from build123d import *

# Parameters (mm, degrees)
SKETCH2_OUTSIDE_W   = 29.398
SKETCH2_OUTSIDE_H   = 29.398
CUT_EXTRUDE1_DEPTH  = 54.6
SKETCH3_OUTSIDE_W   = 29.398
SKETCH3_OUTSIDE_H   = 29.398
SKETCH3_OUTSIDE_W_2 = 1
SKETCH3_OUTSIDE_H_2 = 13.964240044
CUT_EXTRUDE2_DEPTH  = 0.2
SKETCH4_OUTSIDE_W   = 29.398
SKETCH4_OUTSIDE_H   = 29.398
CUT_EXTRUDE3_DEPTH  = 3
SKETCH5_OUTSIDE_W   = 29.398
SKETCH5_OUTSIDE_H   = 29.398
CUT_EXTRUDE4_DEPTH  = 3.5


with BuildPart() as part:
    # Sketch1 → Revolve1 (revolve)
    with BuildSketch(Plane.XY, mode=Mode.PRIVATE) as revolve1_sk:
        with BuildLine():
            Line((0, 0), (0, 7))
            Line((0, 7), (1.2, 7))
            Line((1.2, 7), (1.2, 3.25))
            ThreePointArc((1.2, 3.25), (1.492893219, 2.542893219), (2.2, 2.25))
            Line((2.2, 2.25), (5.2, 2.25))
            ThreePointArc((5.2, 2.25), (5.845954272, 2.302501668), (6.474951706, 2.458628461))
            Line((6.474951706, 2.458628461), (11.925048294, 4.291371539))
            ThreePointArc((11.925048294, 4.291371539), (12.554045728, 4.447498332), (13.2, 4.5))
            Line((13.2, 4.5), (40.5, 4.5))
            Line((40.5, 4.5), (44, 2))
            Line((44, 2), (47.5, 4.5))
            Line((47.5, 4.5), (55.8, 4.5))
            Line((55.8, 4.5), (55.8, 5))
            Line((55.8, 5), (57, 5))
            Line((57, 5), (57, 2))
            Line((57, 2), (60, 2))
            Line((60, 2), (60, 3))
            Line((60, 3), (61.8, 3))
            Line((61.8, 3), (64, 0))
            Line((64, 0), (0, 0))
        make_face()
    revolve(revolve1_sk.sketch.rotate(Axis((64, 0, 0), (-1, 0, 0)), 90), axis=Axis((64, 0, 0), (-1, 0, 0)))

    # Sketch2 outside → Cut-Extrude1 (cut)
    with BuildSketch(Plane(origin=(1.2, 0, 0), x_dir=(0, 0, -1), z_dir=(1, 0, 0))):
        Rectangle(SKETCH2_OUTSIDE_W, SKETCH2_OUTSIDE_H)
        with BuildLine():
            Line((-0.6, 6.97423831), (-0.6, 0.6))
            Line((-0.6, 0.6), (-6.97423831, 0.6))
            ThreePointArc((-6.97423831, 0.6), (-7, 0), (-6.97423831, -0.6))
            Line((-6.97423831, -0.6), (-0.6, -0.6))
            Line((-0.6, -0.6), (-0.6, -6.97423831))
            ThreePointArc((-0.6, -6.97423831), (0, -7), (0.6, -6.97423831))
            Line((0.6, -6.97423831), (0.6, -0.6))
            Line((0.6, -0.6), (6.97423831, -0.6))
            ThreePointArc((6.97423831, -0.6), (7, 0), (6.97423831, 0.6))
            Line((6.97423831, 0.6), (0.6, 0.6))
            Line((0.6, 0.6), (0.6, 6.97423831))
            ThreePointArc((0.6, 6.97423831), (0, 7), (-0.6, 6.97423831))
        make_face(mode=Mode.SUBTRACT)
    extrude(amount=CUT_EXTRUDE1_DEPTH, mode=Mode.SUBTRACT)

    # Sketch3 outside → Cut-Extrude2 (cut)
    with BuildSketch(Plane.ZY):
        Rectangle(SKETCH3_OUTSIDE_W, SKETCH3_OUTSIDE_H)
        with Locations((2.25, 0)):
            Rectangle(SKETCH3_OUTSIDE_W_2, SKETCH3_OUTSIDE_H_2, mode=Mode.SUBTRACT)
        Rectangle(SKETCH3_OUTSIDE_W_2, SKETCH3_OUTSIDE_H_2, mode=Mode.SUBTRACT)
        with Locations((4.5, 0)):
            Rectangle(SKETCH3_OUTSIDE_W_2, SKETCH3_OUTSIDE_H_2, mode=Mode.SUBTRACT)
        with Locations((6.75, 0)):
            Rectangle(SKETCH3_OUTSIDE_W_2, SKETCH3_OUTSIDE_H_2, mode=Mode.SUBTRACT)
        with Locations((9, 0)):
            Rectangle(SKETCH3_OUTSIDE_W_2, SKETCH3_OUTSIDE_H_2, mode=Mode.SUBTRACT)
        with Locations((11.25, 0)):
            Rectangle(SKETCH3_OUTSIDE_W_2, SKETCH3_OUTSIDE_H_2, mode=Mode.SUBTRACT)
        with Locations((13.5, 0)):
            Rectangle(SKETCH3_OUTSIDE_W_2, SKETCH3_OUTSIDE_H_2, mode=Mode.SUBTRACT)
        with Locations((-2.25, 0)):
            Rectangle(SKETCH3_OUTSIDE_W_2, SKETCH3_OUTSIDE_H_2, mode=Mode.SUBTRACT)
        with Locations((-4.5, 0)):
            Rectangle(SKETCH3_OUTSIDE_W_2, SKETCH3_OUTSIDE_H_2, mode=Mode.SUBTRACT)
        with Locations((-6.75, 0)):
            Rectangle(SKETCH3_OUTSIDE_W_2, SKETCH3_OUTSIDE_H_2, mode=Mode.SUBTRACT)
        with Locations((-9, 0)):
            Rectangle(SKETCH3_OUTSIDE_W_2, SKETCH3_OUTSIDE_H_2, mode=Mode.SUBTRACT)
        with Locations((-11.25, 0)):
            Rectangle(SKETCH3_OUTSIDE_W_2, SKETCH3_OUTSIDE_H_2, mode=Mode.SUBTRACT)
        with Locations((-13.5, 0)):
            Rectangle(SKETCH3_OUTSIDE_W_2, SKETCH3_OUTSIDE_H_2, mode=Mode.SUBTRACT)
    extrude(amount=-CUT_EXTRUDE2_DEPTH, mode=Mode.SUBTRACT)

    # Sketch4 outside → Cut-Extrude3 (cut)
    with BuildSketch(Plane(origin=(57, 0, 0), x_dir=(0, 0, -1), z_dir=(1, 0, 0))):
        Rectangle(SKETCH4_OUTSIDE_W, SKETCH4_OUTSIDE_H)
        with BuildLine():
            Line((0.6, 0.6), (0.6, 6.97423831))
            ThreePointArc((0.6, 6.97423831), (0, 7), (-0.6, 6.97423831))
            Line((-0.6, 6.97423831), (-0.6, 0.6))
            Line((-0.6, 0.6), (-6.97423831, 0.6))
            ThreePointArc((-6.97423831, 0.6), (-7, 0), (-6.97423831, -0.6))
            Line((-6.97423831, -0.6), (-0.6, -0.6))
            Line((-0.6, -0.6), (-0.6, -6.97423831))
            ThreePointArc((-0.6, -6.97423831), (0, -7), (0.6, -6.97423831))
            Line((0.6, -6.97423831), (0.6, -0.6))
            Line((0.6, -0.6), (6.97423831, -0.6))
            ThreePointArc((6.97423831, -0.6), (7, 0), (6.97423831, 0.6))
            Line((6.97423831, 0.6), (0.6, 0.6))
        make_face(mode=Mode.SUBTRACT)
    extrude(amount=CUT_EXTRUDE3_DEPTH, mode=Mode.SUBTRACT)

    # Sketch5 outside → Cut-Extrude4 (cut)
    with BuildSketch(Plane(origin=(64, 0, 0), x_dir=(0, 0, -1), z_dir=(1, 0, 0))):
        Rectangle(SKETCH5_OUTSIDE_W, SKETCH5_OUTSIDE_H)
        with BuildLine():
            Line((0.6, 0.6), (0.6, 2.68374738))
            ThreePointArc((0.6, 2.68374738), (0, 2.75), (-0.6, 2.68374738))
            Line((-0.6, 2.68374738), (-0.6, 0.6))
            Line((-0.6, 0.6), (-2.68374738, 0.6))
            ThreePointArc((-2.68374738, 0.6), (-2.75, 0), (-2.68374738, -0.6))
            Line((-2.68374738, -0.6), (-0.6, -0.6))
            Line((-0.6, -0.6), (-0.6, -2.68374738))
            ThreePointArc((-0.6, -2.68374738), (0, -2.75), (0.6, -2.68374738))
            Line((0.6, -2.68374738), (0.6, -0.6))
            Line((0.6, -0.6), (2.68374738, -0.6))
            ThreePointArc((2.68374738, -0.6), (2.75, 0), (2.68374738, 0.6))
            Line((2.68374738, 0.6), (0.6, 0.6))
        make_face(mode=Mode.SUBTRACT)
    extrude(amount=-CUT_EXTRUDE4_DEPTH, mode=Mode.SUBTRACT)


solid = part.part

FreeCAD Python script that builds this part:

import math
import FreeCAD as App
import Part
import Sketcher
from FreeCAD import Vector
Q = App.Units.Quantity

doc = App.newDocument("Part")
body = doc.addObject("PartDesign::Body", "Body")

sketch1 = body.newObject("Sketcher::SketchObject", "Sketch")
sketch1.AttachmentSupport = (doc.getObject("XY_Plane"), [""])
sketch1.MapMode = "FlatFace"
sketch1.addGeometry([
    Part.LineSegment(Vector(0, 7, 0), Vector(0, 0, 0)),
    Part.LineSegment(Vector(0, 0, 0), Vector(64, 0, 0)),
    Part.LineSegment(Vector(64, 0, 0), Vector(61.8, 3, 0)),
    Part.LineSegment(Vector(61.8, 3, 0), Vector(60, 3, 0)),
    Part.LineSegment(Vector(60, 3, 0), Vector(60, 2, 0)),
    Part.LineSegment(Vector(60, 2, 0), Vector(57, 2, 0)),
    Part.LineSegment(Vector(57, 2, 0), Vector(57, 5, 0)),
    Part.LineSegment(Vector(57, 5, 0), Vector(55.8, 5, 0)),
    Part.LineSegment(Vector(55.8, 5, 0), Vector(55.8, 4.5, 0)),
    Part.LineSegment(Vector(55.8, 4.5, 0), Vector(47.5, 4.5, 0)),
    Part.LineSegment(Vector(47.5, 4.5, 0), Vector(44, 2, 0)),
    Part.LineSegment(Vector(44, 2, 0), Vector(40.5, 4.5, 0)),
    Part.LineSegment(Vector(40.5, 4.5, 0), Vector(13.2, 4.5, 0)),
    Part.ArcOfCircle(Part.Circle(Vector(13.2, 0.5, 0), Vector(0, 0, 1), 4), math.radians(90), math.radians(108.59)),
    Part.LineSegment(Vector(11.9, 4.3, 0), Vector(6.5, 2.5, 0)),
    Part.ArcOfCircle(Part.Circle(Vector(5.2, 6.2, 0), Vector(0, 0, 1), 4), math.radians(-90), math.radians(-71.41)),
    Part.LineSegment(Vector(5.2, 2.2, 0), Vector(2.2, 2.2, 0)),
    Part.ArcOfCircle(Part.Circle(Vector(2.2, 3.3, 0), Vector(0, 0, 1), 1), math.radians(-180), math.radians(-90)),
    Part.LineSegment(Vector(1.2, 3.2, 0), Vector(1.2, 7, 0)),
    Part.LineSegment(Vector(1.2, 7, 0), Vector(0, 7, 0)),
], False)
sketch1.addConstraint([
    Sketcher.Constraint("Coincident", 0, 2, 1, 1),
    Sketcher.Constraint("Coincident", 1, 2, 2, 1),
    Sketcher.Constraint("Coincident", 2, 2, 3, 1),
    Sketcher.Constraint("Coincident", 3, 2, 4, 1),
    Sketcher.Constraint("Coincident", 4, 2, 5, 1),
    Sketcher.Constraint("Coincident", 5, 2, 6, 1),
    Sketcher.Constraint("Coincident", 6, 2, 7, 1),
    Sketcher.Constraint("Coincident", 7, 2, 8, 1),
    Sketcher.Constraint("Coincident", 8, 2, 9, 1),
    Sketcher.Constraint("Coincident", 9, 2, 10, 1),
    Sketcher.Constraint("Coincident", 10, 2, 11, 1),
    Sketcher.Constraint("Coincident", 11, 2, 12, 1),
    Sketcher.Constraint("Tangent", 12, 2, 13, 1),
    Sketcher.Constraint("Tangent", 13, 2, 14, 1),
    Sketcher.Constraint("Tangent", 14, 2, 15, 2),
    Sketcher.Constraint("Tangent", 15, 1, 16, 1),
    Sketcher.Constraint("Tangent", 16, 2, 17, 2),
    Sketcher.Constraint("Tangent", 17, 1, 18, 1),
    Sketcher.Constraint("Coincident", 18, 2, 19, 1),
    Sketcher.Constraint("Coincident", 19, 2, 0, 1),
    Sketcher.Constraint("Vertical", 0),
    Sketcher.Constraint("Horizontal", 1),
    Sketcher.Constraint("Horizontal", 3),
    Sketcher.Constraint("Vertical", 4),
    Sketcher.Constraint("Horizontal", 5),
    Sketcher.Constraint("Vertical", 6),
    Sketcher.Constraint("Horizontal", 7),
    Sketcher.Constraint("Vertical", 8),
    Sketcher.Constraint("Horizontal", 9),
    Sketcher.Constraint("Horizontal", 12),
    Sketcher.Constraint("Horizontal", 16),
    Sketcher.Constraint("Vertical", 18),
    Sketcher.Constraint("Horizontal", 19),
    Sketcher.Constraint("Coincident", 0, 2, -1, 1),
    Sketcher.Constraint("Equal", 13, 15),
    Sketcher.Constraint("Horizontal", 5, 2, 10, 2),
    Sketcher.Constraint("Horizontal", 9, 2, 11, 2),
    Sketcher.Constraint("Equal", 5, 16),
    Sketcher.Constraint("Equal", 7, 19),
    Sketcher.Constraint("Equal", 16, 6),
    Sketcher.Constraint("Equal", 10, 11),
    Sketcher.Constraint("Radius", 13, Q("4 mm")),
    Sketcher.Constraint("Radius", 17, Q("1 mm")),
    Sketcher.Constraint("DistanceX", 1, 1, 1, 2, Q("64 mm")),
    Sketcher.Constraint("DistanceX", 5, 2, 5, 1, Q("3 mm")),
    Sketcher.Constraint("DistanceY", 0, 2, 0, 1, Q("7 mm")),
    Sketcher.Constraint("DistanceY", 4, 2, 4, 1, Q("1 mm")),
    Sketcher.Constraint("DistanceX", 3, 2, 3, 1, Q("1.8 mm")),
    Sketcher.Constraint("DistanceX", 7, 2, 7, 1, Q("1.2 mm")),
    Sketcher.Constraint("DistanceX", 9, 2, 9, 1, Q("8.3 mm")),
    Sketcher.Constraint("DistanceX", 12, 2, 12, 1, Q("27.3 mm")),
    Sketcher.Constraint("DistanceY", 8, 2, 8, 1, Q("0.5 mm")),
    Sketcher.Constraint("DistanceY", -1, 1, 2, 2, Q("3 mm")),
    Sketcher.Constraint("DistanceX", -1, 1, 3, 2, Q("60 mm")),
    Sketcher.Constraint("DistanceX", -1, 1, 10, 2, Q("44 mm")),
    Sketcher.Constraint("DistanceY", 18, 1, 18, 2, Q("3.75 mm")),
])
revolution = body.newObject("PartDesign::Revolution", "Revolution")
revolution.Profile = sketch1
revolution.ReferenceAxis = (sketch1, ["H_Axis"])
revolution.Angle = 360

sketch2 = body.newObject("Sketcher::SketchObject", "Sketch001")
sketch2.AttachmentSupport = (doc.getObject("YZ_Plane"), [""])
sketch2.MapMode = "FlatFace"
sketch2.AttachmentOffset = App.Placement(Vector(0, 0, 1.2), App.Rotation())
sketch2.addGeometry([
    Part.LineSegment(Vector(14.7, 14.7, 0), Vector(-14.7, 14.7, 0)),
    Part.LineSegment(Vector(-14.7, 14.7, 0), Vector(-14.7, -14.7, 0)),
    Part.LineSegment(Vector(-14.7, -14.7, 0), Vector(14.7, -14.7, 0)),
    Part.LineSegment(Vector(14.7, -14.7, 0), Vector(14.7, 14.7, 0)),
    Part.LineSegment(Vector(0.6, 0.6, 0), Vector(7, 0.6, 0)),
    Part.ArcOfCircle(Part.Circle(Vector(0, 0, 0), Vector(0, 0, 1), 7), math.radians(-4.92), math.radians(4.92)),
    Part.LineSegment(Vector(7, -0.6, 0), Vector(0.6, -0.6, 0)),
    Part.LineSegment(Vector(0.6, -0.6, 0), Vector(0.6, -7, 0)),
    Part.ArcOfCircle(Part.Circle(Vector(0, 0, 0), Vector(0, 0, 1), 7), math.radians(-94.92), math.radians(-85.08)),
    Part.LineSegment(Vector(-0.6, -7, 0), Vector(-0.6, -0.6, 0)),
    Part.LineSegment(Vector(-0.6, -0.6, 0), Vector(-7, -0.6, 0)),
    Part.ArcOfCircle(Part.Circle(Vector(0, 0, 0), Vector(0, 0, 1), 7), math.radians(175.08), math.radians(184.92)),
    Part.LineSegment(Vector(-7, 0.6, 0), Vector(-0.6, 0.6, 0)),
    Part.LineSegment(Vector(-0.6, 0.6, 0), Vector(-0.6, 7, 0)),
    Part.ArcOfCircle(Part.Circle(Vector(0, 0, 0), Vector(0, 0, 1), 7), math.radians(85.08), math.radians(94.92)),
    Part.LineSegment(Vector(0.6, 7, 0), Vector(0.6, 0.6, 0)),
], False)
sketch2.addConstraint([
    Sketcher.Constraint("Coincident", 0, 2, 1, 1),
    Sketcher.Constraint("Coincident", 1, 2, 2, 1),
    Sketcher.Constraint("Coincident", 2, 2, 3, 1),
    Sketcher.Constraint("Coincident", 3, 2, 0, 1),
    Sketcher.Constraint("Coincident", 4, 2, 5, 2),
    Sketcher.Constraint("Coincident", 5, 1, 6, 1),
    Sketcher.Constraint("Coincident", 6, 2, 7, 1),
    Sketcher.Constraint("Coincident", 7, 2, 8, 2),
    Sketcher.Constraint("Coincident", 8, 1, 9, 1),
    Sketcher.Constraint("Coincident", 9, 2, 10, 1),
    Sketcher.Constraint("Coincident", 10, 2, 11, 2),
    Sketcher.Constraint("Coincident", 11, 1, 12, 1),
    Sketcher.Constraint("Coincident", 12, 2, 13, 1),
    Sketcher.Constraint("Coincident", 13, 2, 14, 2),
    Sketcher.Constraint("Coincident", 14, 1, 15, 1),
    Sketcher.Constraint("Coincident", 15, 2, 4, 1),
    Sketcher.Constraint("Horizontal", 0),
    Sketcher.Constraint("Vertical", 1),
    Sketcher.Constraint("Horizontal", 2),
    Sketcher.Constraint("Vertical", 3),
    Sketcher.Constraint("Horizontal", 4),
    Sketcher.Constraint("Horizontal", 6),
    Sketcher.Constraint("Vertical", 7),
    Sketcher.Constraint("Vertical", 9),
    Sketcher.Constraint("Horizontal", 10),
    Sketcher.Constraint("Horizontal", 12),
    Sketcher.Constraint("Vertical", 13),
    Sketcher.Constraint("Vertical", 15),
    Sketcher.Constraint("Coincident", 5, 3, -1, 1),
    Sketcher.Constraint("Coincident", 8, 3, -1, 1),
    Sketcher.Constraint("Coincident", 11, 3, -1, 1),
    Sketcher.Constraint("Coincident", 14, 3, -1, 1),
    Sketcher.Constraint("Equal", 5, 8),
    Sketcher.Constraint("Equal", 8, 11),
    Sketcher.Constraint("Equal", 11, 14),
    Sketcher.Constraint("Symmetric", 0, 2, 2, 2, -1, 1),
    Sketcher.Constraint("Symmetric", 6, 2, 12, 2, -1, 1),
    Sketcher.Constraint("Symmetric", 9, 2, 15, 2, -1, 1),
    Sketcher.Constraint("Symmetric", 6, 2, 9, 2, -2),
    Sketcher.Constraint("Equal", 2, 1),
    Sketcher.Constraint("Equal", 12, 7),
    Sketcher.Constraint("Radius", 5, Q("7 mm")),
    Sketcher.Constraint("DistanceY", -1, 1, 4, 2, Q("0.6 mm")),
    Sketcher.Constraint("DistanceX", 0, 2, 0, 1, Q("29.398 mm")),
])
pocket1 = body.newObject("PartDesign::Pocket", "Pocket")
pocket1.Profile = sketch2
pocket1.Length = 54.6
pocket1.Reversed = True

sketch3 = body.newObject("Sketcher::SketchObject", "Sketch002")
sketch3.AttachmentSupport = (doc.getObject("YZ_Plane"), [""])
sketch3.MapMode = "FlatFace"
sketch3.addGeometry([
    Part.LineSegment(Vector(14.7, -14.7, 0), Vector(-14.7, -14.7, 0)),
    Part.LineSegment(Vector(-14.7, -14.7, 0), Vector(-14.7, 14.7, 0)),
    Part.LineSegment(Vector(-14.7, 14.7, 0), Vector(14.7, 14.7, 0)),
    Part.LineSegment(Vector(14.7, 14.7, 0), Vector(14.7, -14.7, 0)),
    Part.LineSegment(Vector(-7, -13, 0), Vector(-7, -14, 0)),
    Part.LineSegment(Vector(-7, -14, 0), Vector(7, -14, 0)),
    Part.LineSegment(Vector(7, -14, 0), Vector(7, -13, 0)),
    Part.LineSegment(Vector(7, -13, 0), Vector(-7, -13, 0)),
    Part.LineSegment(Vector(-7, -10.8, 0), Vector(-7, -11.8, 0)),
    Part.LineSegment(Vector(-7, -11.8, 0), Vector(7, -11.8, 0)),
    Part.LineSegment(Vector(7, -11.8, 0), Vector(7, -10.8, 0)),
    Part.LineSegment(Vector(7, -10.8, 0), Vector(-7, -10.8, 0)),
    Part.LineSegment(Vector(-7, -8.5, 0), Vector(-7, -9.5, 0)),
    Part.LineSegment(Vector(-7, -9.5, 0), Vector(7, -9.5, 0)),
    Part.LineSegment(Vector(7, -9.5, 0), Vector(7, -8.5, 0)),
    Part.LineSegment(Vector(7, -8.5, 0), Vector(-7, -8.5, 0)),
    Part.LineSegment(Vector(-7, -6.2, 0), Vector(-7, -7.2, 0)),
    Part.LineSegment(Vector(-7, -7.2, 0), Vector(7, -7.2, 0)),
    Part.LineSegment(Vector(7, -7.2, 0), Vector(7, -6.2, 0)),
    Part.LineSegment(Vector(7, -6.2, 0), Vector(-7, -6.2, 0)),
    Part.LineSegment(Vector(-7, -4, 0), Vector(-7, -5, 0)),
    Part.LineSegment(Vector(-7, -5, 0), Vector(7, -5, 0)),
    Part.LineSegment(Vector(7, -5, 0), Vector(7, -4, 0)),
    Part.LineSegment(Vector(7, -4, 0), Vector(-7, -4, 0)),
    Part.LineSegment(Vector(-7, -1.8, 0), Vector(-7, -2.8, 0)),
    Part.LineSegment(Vector(-7, -2.8, 0), Vector(7, -2.8, 0)),
    Part.LineSegment(Vector(7, -2.8, 0), Vector(7, -1.8, 0)),
    Part.LineSegment(Vector(7, -1.8, 0), Vector(-7, -1.8, 0)),
    Part.LineSegment(Vector(-7, 0.5, 0), Vector(-7, -0.5, 0)),
    Part.LineSegment(Vector(-7, -0.5, 0), Vector(7, -0.5, 0)),
    Part.LineSegment(Vector(7, -0.5, 0), Vector(7, 0.5, 0)),
    Part.LineSegment(Vector(7, 0.5, 0), Vector(-7, 0.5, 0)),
    Part.LineSegment(Vector(-7, 2.8, 0), Vector(-7, 1.8, 0)),
    Part.LineSegment(Vector(-7, 1.8, 0), Vector(7, 1.8, 0)),
    Part.LineSegment(Vector(7, 1.8, 0), Vector(7, 2.8, 0)),
    Part.LineSegment(Vector(7, 2.8, 0), Vector(-7, 2.8, 0)),
    Part.LineSegment(Vector(-7, 5, 0), Vector(-7, 4, 0)),
    Part.LineSegment(Vector(-7, 4, 0), Vector(7, 4, 0)),
    Part.LineSegment(Vector(7, 4, 0), Vector(7, 5, 0)),
    Part.LineSegment(Vector(7, 5, 0), Vector(-7, 5, 0)),
    Part.LineSegment(Vector(-7, 7.2, 0), Vector(-7, 6.2, 0)),
    Part.LineSegment(Vector(-7, 6.2, 0), Vector(7, 6.2, 0)),
    Part.LineSegment(Vector(7, 6.2, 0), Vector(7, 7.2, 0)),
    Part.LineSegment(Vector(7, 7.2, 0), Vector(-7, 7.2, 0)),
    Part.LineSegment(Vector(-7, 9.5, 0), Vector(-7, 8.5, 0)),
    Part.LineSegment(Vector(-7, 8.5, 0), Vector(7, 8.5, 0)),
    Part.LineSegment(Vector(7, 8.5, 0), Vector(7, 9.5, 0)),
    Part.LineSegment(Vector(7, 9.5, 0), Vector(-7, 9.5, 0)),
    Part.LineSegment(Vector(-7, 11.8, 0), Vector(-7, 10.8, 0)),
    Part.LineSegment(Vector(-7, 10.8, 0), Vector(7, 10.8, 0)),
    Part.LineSegment(Vector(7, 10.8, 0), Vector(7, 11.8, 0)),
    Part.LineSegment(Vector(7, 11.8, 0), Vector(-7, 11.8, 0)),
    Part.LineSegment(Vector(-7, 14, 0), Vector(-7, 13, 0)),
    Part.LineSegment(Vector(-7, 13, 0), Vector(7, 13, 0)),
    Part.LineSegment(Vector(7, 13, 0), Vector(7, 14, 0)),
    Part.LineSegment(Vector(7, 14, 0), Vector(-7, 14, 0)),
], False)
sketch3.addConstraint([
    Sketcher.Constraint("Coincident", 0, 2, 1, 1),
    Sketcher.Constraint("Coincident", 1, 2, 2, 1),
    Sketcher.Constraint("Coincident", 2, 2, 3, 1),
    Sketcher.Constraint("Coincident", 3, 2, 0, 1),
    Sketcher.Constraint("Coincident", 4, 2, 5, 1),
    Sketcher.Constraint("Coincident", 5, 2, 6, 1),
    Sketcher.Constraint("Coincident", 6, 2, 7, 1),
    Sketcher.Constraint("Coincident", 7, 2, 4, 1),
    Sketcher.Constraint("Coincident", 8, 2, 9, 1),
    Sketcher.Constraint("Coincident", 9, 2, 10, 1),
    Sketcher.Constraint("Coincident", 10, 2, 11, 1),
    Sketcher.Constraint("Coincident", 11, 2, 8, 1),
    Sketcher.Constraint("Coincident", 12, 2, 13, 1),
    Sketcher.Constraint("Coincident", 13, 2, 14, 1),
    Sketcher.Constraint("Coincident", 14, 2, 15, 1),
    Sketcher.Constraint("Coincident", 15, 2, 12, 1),
    Sketcher.Constraint("Coincident", 16, 2, 17, 1),
    Sketcher.Constraint("Coincident", 17, 2, 18, 1),
    Sketcher.Constraint("Coincident", 18, 2, 19, 1),
    Sketcher.Constraint("Coincident", 19, 2, 16, 1),
    Sketcher.Constraint("Coincident", 20, 2, 21, 1),
    Sketcher.Constraint("Coincident", 21, 2, 22, 1),
    Sketcher.Constraint("Coincident", 22, 2, 23, 1),
    Sketcher.Constraint("Coincident", 23, 2, 20, 1),
    Sketcher.Constraint("Coincident", 24, 2, 25, 1),
    Sketcher.Constraint("Coincident", 25, 2, 26, 1),
    Sketcher.Constraint("Coincident", 26, 2, 27, 1),
    Sketcher.Constraint("Coincident", 27, 2, 24, 1),
    Sketcher.Constraint("Coincident", 28, 2, 29, 1),
    Sketcher.Constraint("Coincident", 29, 2, 30, 1),
    Sketcher.Constraint("Coincident", 30, 2, 31, 1),
    Sketcher.Constraint("Coincident", 31, 2, 28, 1),
    Sketcher.Constraint("Coincident", 32, 2, 33, 1),
    Sketcher.Constraint("Coincident", 33, 2, 34, 1),
    Sketcher.Constraint("Coincident", 34, 2, 35, 1),
    Sketcher.Constraint("Coincident", 35, 2, 32, 1),
    Sketcher.Constraint("Coincident", 36, 2, 37, 1),
    Sketcher.Constraint("Coincident", 37, 2, 38, 1),
    Sketcher.Constraint("Coincident", 38, 2, 39, 1),
    Sketcher.Constraint("Coincident", 39, 2, 36, 1),
    Sketcher.Constraint("Coincident", 40, 2, 41, 1),
    Sketcher.Constraint("Coincident", 41, 2, 42, 1),
    Sketcher.Constraint("Coincident", 42, 2, 43, 1),
    Sketcher.Constraint("Coincident", 43, 2, 40, 1),
    Sketcher.Constraint("Coincident", 44, 2, 45, 1),
    Sketcher.Constraint("Coincident", 45, 2, 46, 1),
    Sketcher.Constraint("Coincident", 46, 2, 47, 1),
    Sketcher.Constraint("Coincident", 47, 2, 44, 1),
    Sketcher.Constraint("Coincident", 48, 2, 49, 1),
    Sketcher.Constraint("Coincident", 49, 2, 50, 1),
    Sketcher.Constraint("Coincident", 50, 2, 51, 1),
    Sketcher.Constraint("Coincident", 51, 2, 48, 1),
    Sketcher.Constraint("Coincident", 52, 2, 53, 1),
    Sketcher.Constraint("Coincident", 53, 2, 54, 1),
    Sketcher.Constraint("Coincident", 54, 2, 55, 1),
    Sketcher.Constraint("Coincident", 55, 2, 52, 1),
    Sketcher.Constraint("Horizontal", 0),
    Sketcher.Constraint("Vertical", 1),
    Sketcher.Constraint("Horizontal", 2),
    Sketcher.Constraint("Vertical", 3),
    Sketcher.Constraint("Vertical", 4),
    Sketcher.Constraint("Horizontal", 5),
    Sketcher.Constraint("Vertical", 6),
    Sketcher.Constraint("Horizontal", 7),
    Sketcher.Constraint("Vertical", 8),
    Sketcher.Constraint("Horizontal", 9),
    Sketcher.Constraint("Vertical", 10),
    Sketcher.Constraint("Horizontal", 11),
    Sketcher.Constraint("Vertical", 12),
    Sketcher.Constraint("Horizontal", 13),
    Sketcher.Constraint("Vertical", 14),
    Sketcher.Constraint("Horizontal", 15),
    Sketcher.Constraint("Vertical", 16),
    Sketcher.Constraint("Horizontal", 17),
    Sketcher.Constraint("Vertical", 18),
    Sketcher.Constraint("Horizontal", 19),
    Sketcher.Constraint("Vertical", 20),
    Sketcher.Constraint("Horizontal", 21),
    Sketcher.Constraint("Vertical", 22),
    Sketcher.Constraint("Horizontal", 23),
    Sketcher.Constraint("Vertical", 24),
    Sketcher.Constraint("Horizontal", 25),
    Sketcher.Constraint("Vertical", 26),
    Sketcher.Constraint("Horizontal", 27),
    Sketcher.Constraint("Vertical", 28),
    Sketcher.Constraint("Horizontal", 29),
    Sketcher.Constraint("Vertical", 30),
    Sketcher.Constraint("Horizontal", 31),
    Sketcher.Constraint("Vertical", 32),
    Sketcher.Constraint("Horizontal", 33),
    Sketcher.Constraint("Vertical", 34),
    Sketcher.Constraint("Horizontal", 35),
    Sketcher.Constraint("Vertical", 36),
    Sketcher.Constraint("Horizontal", 37),
    Sketcher.Constraint("Vertical", 38),
    Sketcher.Constraint("Horizontal", 39),
    Sketcher.Constraint("Vertical", 40),
    Sketcher.Constraint("Horizontal", 41),
    Sketcher.Constraint("Vertical", 42),
    Sketcher.Constraint("Horizontal", 43),
    Sketcher.Constraint("Vertical", 44),
    Sketcher.Constraint("Horizontal", 45),
    Sketcher.Constraint("Vertical", 46),
    Sketcher.Constraint("Horizontal", 47),
    Sketcher.Constraint("Vertical", 48),
    Sketcher.Constraint("Horizontal", 49),
    Sketcher.Constraint("Vertical", 50),
    Sketcher.Constraint("Horizontal", 51),
    Sketcher.Constraint("Vertical", 52),
    Sketcher.Constraint("Horizontal", 53),
    Sketcher.Constraint("Vertical", 54),
    Sketcher.Constraint("Horizontal", 55),
    Sketcher.Constraint("Symmetric", 0, 2, 2, 2, -1, 1),
    Sketcher.Constraint("Symmetric", 28, 2, 30, 2, -1, 1),
    Sketcher.Constraint("Symmetric", 26, 2, 32, 2, -1, 1),
    Sketcher.Constraint("Symmetric", 24, 2, 34, 2, -1, 1),
    Sketcher.Constraint("Symmetric", 22, 2, 36, 2, -1, 1),
    Sketcher.Constraint("Symmetric", 20, 2, 38, 2, -1, 1),
    Sketcher.Constraint("Symmetric", 18, 2, 40, 2, -1, 1),
    Sketcher.Constraint("Symmetric", 16, 2, 42, 2, -1, 1),
    Sketcher.Constraint("Symmetric", 14, 2, 44, 2, -1, 1),
    Sketcher.Constraint("Symmetric", 12, 2, 46, 2, -1, 1),
    Sketcher.Constraint("Symmetric", 10, 2, 48, 2, -1, 1),
    Sketcher.Constraint("Symmetric", 8, 2, 50, 2, -1, 1),
    Sketcher.Constraint("Symmetric", 6, 2, 52, 2, -1, 1),
    Sketcher.Constraint("Symmetric", 4, 2, 54, 2, -1, 1),
    Sketcher.Constraint("Vertical", 7, 2, 8, 2),
    Sketcher.Constraint("Vertical", 6, 2, 9, 2),
    Sketcher.Constraint("Vertical", 11, 2, 12, 2),
    Sketcher.Constraint("Vertical", 10, 2, 13, 2),
    Sketcher.Constraint("Vertical", 15, 2, 16, 2),
    Sketcher.Constraint("Vertical", 14, 2, 17, 2),
    Sketcher.Constraint("Vertical", 19, 2, 20, 2),
    Sketcher.Constraint("Vertical", 18, 2, 21, 2),
    Sketcher.Constraint("Vertical", 23, 2, 24, 2),
    Sketcher.Constraint("Vertical", 22, 2, 25, 2),
    Sketcher.Constraint("Vertical", 27, 2, 28, 2),
    Sketcher.Constraint("Vertical", 26, 2, 29, 2),
    Sketcher.Constraint("Equal", 2, 1),
    Sketcher.Constraint("Equal", 6, 8),
    Sketcher.Constraint("Equal", 10, 12),
    Sketcher.Constraint("Equal", 14, 16),
    Sketcher.Constraint("Equal", 18, 20),
    Sketcher.Constraint("Equal", 22, 24),
    Sketcher.Constraint("Equal", 26, 28),
    Sketcher.Constraint("DistanceY", 4, 2, 4, 1, Q("1 mm")),
    Sketcher.Constraint("DistanceY", 4, 2, -1, 1, Q("14 mm")),
    Sketcher.Constraint("DistanceY", 20, 2, -1, 1, Q("5 mm")),
    Sketcher.Constraint("DistanceY", 12, 2, -1, 1, Q("9.5 mm")),
    Sketcher.Constraint("DistanceY", 11, 2, 16, 2, Q("3.5 mm")),
    Sketcher.Constraint("DistanceY", 19, 2, 24, 2, Q("3.5 mm")),
    Sketcher.Constraint("DistanceY", 27, 2, 32, 2, Q("3.5 mm")),
    Sketcher.Constraint("DistanceX", 0, 2, 0, 1, Q("29.398 mm")),
    Sketcher.Constraint("DistanceX", 5, 1, 5, 2, Q("13.96424 mm")),
])
pocket2 = body.newObject("PartDesign::Pocket", "Pocket001")
pocket2.Profile = sketch3
pocket2.Length = 0.2
pocket2.Reversed = True

sketch4 = body.newObject("Sketcher::SketchObject", "Sketch003")
sketch4.AttachmentSupport = (doc.getObject("YZ_Plane"), [""])
sketch4.MapMode = "FlatFace"
sketch4.AttachmentOffset = App.Placement(Vector(0, 0, 57), App.Rotation())
sketch4.addGeometry([
    Part.LineSegment(Vector(14.7, 14.7, 0), Vector(-14.7, 14.7, 0)),
    Part.LineSegment(Vector(-14.7, 14.7, 0), Vector(-14.7, -14.7, 0)),
    Part.LineSegment(Vector(-14.7, -14.7, 0), Vector(14.7, -14.7, 0)),
    Part.LineSegment(Vector(14.7, -14.7, 0), Vector(14.7, 14.7, 0)),
    Part.LineSegment(Vector(7, -0.6, 0), Vector(0.6, -0.6, 0)),
    Part.LineSegment(Vector(0.6, -0.6, 0), Vector(0.6, -7, 0)),
    Part.ArcOfCircle(Part.Circle(Vector(0, 0, 0), Vector(0, 0, 1), 7), math.radians(-94.92), math.radians(-85.08)),
    Part.LineSegment(Vector(-0.6, -7, 0), Vector(-0.6, -0.6, 0)),
    Part.LineSegment(Vector(-0.6, -0.6, 0), Vector(-7, -0.6, 0)),
    Part.ArcOfCircle(Part.Circle(Vector(0, 0, 0), Vector(0, 0, 1), 7), math.radians(175.08), math.radians(184.92)),
    Part.LineSegment(Vector(-7, 0.6, 0), Vector(-0.6, 0.6, 0)),
    Part.LineSegment(Vector(-0.6, 0.6, 0), Vector(-0.6, 7, 0)),
    Part.ArcOfCircle(Part.Circle(Vector(0, 0, 0), Vector(0, 0, 1), 7), math.radians(85.08), math.radians(94.92)),
    Part.LineSegment(Vector(0.6, 7, 0), Vector(0.6, 0.6, 0)),
    Part.LineSegment(Vector(0.6, 0.6, 0), Vector(7, 0.6, 0)),
    Part.ArcOfCircle(Part.Circle(Vector(0, 0, 0), Vector(0, 0, 1), 7), math.radians(-4.92), math.radians(4.92)),
], False)
sketch4.addConstraint([
    Sketcher.Constraint("Coincident", 0, 2, 1, 1),
    Sketcher.Constraint("Coincident", 1, 2, 2, 1),
    Sketcher.Constraint("Coincident", 2, 2, 3, 1),
    Sketcher.Constraint("Coincident", 3, 2, 0, 1),
    Sketcher.Constraint("Coincident", 4, 2, 5, 1),
    Sketcher.Constraint("Coincident", 5, 2, 6, 2),
    Sketcher.Constraint("Coincident", 6, 1, 7, 1),
    Sketcher.Constraint("Coincident", 7, 2, 8, 1),
    Sketcher.Constraint("Coincident", 8, 2, 9, 2),
    Sketcher.Constraint("Coincident", 9, 1, 10, 1),
    Sketcher.Constraint("Coincident", 10, 2, 11, 1),
    Sketcher.Constraint("Coincident", 11, 2, 12, 2),
    Sketcher.Constraint("Coincident", 12, 1, 13, 1),
    Sketcher.Constraint("Coincident", 13, 2, 14, 1),
    Sketcher.Constraint("Coincident", 14, 2, 15, 2),
    Sketcher.Constraint("Coincident", 15, 1, 4, 1),
    Sketcher.Constraint("Horizontal", 0),
    Sketcher.Constraint("Vertical", 1),
    Sketcher.Constraint("Horizontal", 2),
    Sketcher.Constraint("Vertical", 3),
    Sketcher.Constraint("Horizontal", 4),
    Sketcher.Constraint("Vertical", 5),
    Sketcher.Constraint("Vertical", 7),
    Sketcher.Constraint("Horizontal", 8),
    Sketcher.Constraint("Horizontal", 10),
    Sketcher.Constraint("Vertical", 11),
    Sketcher.Constraint("Vertical", 13),
    Sketcher.Constraint("Horizontal", 14),
    Sketcher.Constraint("Coincident", 6, 3, -1, 1),
    Sketcher.Constraint("Coincident", 9, 3, -1, 1),
    Sketcher.Constraint("Coincident", 12, 3, -1, 1),
    Sketcher.Constraint("Coincident", 15, 3, -1, 1),
    Sketcher.Constraint("Equal", 6, 9),
    Sketcher.Constraint("Equal", 9, 12),
    Sketcher.Constraint("Equal", 12, 15),
    Sketcher.Constraint("Symmetric", 0, 2, 2, 2, -1, 1),
    Sketcher.Constraint("Symmetric", 4, 2, 10, 2, -1, 1),
    Sketcher.Constraint("Symmetric", 7, 2, 13, 2, -1, 1),
    Sketcher.Constraint("Symmetric", 4, 2, 7, 2, -2),
    Sketcher.Constraint("Equal", 2, 1),
    Sketcher.Constraint("Equal", 14, 5),
    Sketcher.Constraint("Radius", 6, Q("7 mm")),
    Sketcher.Constraint("DistanceX", -1, 1, 4, 2, Q("0.6 mm")),
    Sketcher.Constraint("DistanceX", 0, 2, 0, 1, Q("29.398 mm")),
])
pocket3 = body.newObject("PartDesign::Pocket", "Pocket002")
pocket3.Profile = sketch4
pocket3.Length = 3
pocket3.Reversed = True

sketch5 = body.newObject("Sketcher::SketchObject", "Sketch004")
sketch5.AttachmentSupport = (doc.getObject("YZ_Plane"), [""])
sketch5.MapMode = "FlatFace"
sketch5.AttachmentOffset = App.Placement(Vector(0, 0, 64), App.Rotation())
sketch5.addGeometry([
    Part.LineSegment(Vector(14.7, 14.7, 0), Vector(-14.7, 14.7, 0)),
    Part.LineSegment(Vector(-14.7, 14.7, 0), Vector(-14.7, -14.7, 0)),
    Part.LineSegment(Vector(-14.7, -14.7, 0), Vector(14.7, -14.7, 0)),
    Part.LineSegment(Vector(14.7, -14.7, 0), Vector(14.7, 14.7, 0)),
    Part.LineSegment(Vector(2.7, -0.6, 0), Vector(0.6, -0.6, 0)),
    Part.LineSegment(Vector(0.6, -0.6, 0), Vector(0.6, -2.7, 0)),
    Part.ArcOfCircle(Part.Circle(Vector(0, 0, 0), Vector(0, 0, 1), 2.7), math.radians(-103), math.radians(-77)),
    Part.LineSegment(Vector(-0.6, -2.7, 0), Vector(-0.6, -0.6, 0)),
    Part.LineSegment(Vector(-0.6, -0.6, 0), Vector(-2.7, -0.6, 0)),
    Part.ArcOfCircle(Part.Circle(Vector(0, 0, 0), Vector(0, 0, 1), 2.7), math.radians(167), math.radians(193)),
    Part.LineSegment(Vector(-2.7, 0.6, 0), Vector(-0.6, 0.6, 0)),
    Part.LineSegment(Vector(-0.6, 0.6, 0), Vector(-0.6, 2.7, 0)),
    Part.ArcOfCircle(Part.Circle(Vector(0, 0, 0), Vector(0, 0, 1), 2.7), math.radians(77), math.radians(103)),
    Part.LineSegment(Vector(0.6, 2.7, 0), Vector(0.6, 0.6, 0)),
    Part.LineSegment(Vector(0.6, 0.6, 0), Vector(2.7, 0.6, 0)),
    Part.ArcOfCircle(Part.Circle(Vector(0, 0, 0), Vector(0, 0, 1), 2.7), math.radians(-13), math.radians(13)),
], False)
sketch5.addConstraint([
    Sketcher.Constraint("Coincident", 0, 2, 1, 1),
    Sketcher.Constraint("Coincident", 1, 2, 2, 1),
    Sketcher.Constraint("Coincident", 2, 2, 3, 1),
    Sketcher.Constraint("Coincident", 3, 2, 0, 1),
    Sketcher.Constraint("Coincident", 4, 2, 5, 1),
    Sketcher.Constraint("Coincident", 5, 2, 6, 2),
    Sketcher.Constraint("Coincident", 6, 1, 7, 1),
    Sketcher.Constraint("Coincident", 7, 2, 8, 1),
    Sketcher.Constraint("Coincident", 8, 2, 9, 2),
    Sketcher.Constraint("Coincident", 9, 1, 10, 1),
    Sketcher.Constraint("Coincident", 10, 2, 11, 1),
    Sketcher.Constraint("Coincident", 11, 2, 12, 2),
    Sketcher.Constraint("Coincident", 12, 1, 13, 1),
    Sketcher.Constraint("Coincident", 13, 2, 14, 1),
    Sketcher.Constraint("Coincident", 14, 2, 15, 2),
    Sketcher.Constraint("Coincident", 15, 1, 4, 1),
    Sketcher.Constraint("Horizontal", 0),
    Sketcher.Constraint("Vertical", 1),
    Sketcher.Constraint("Horizontal", 2),
    Sketcher.Constraint("Vertical", 3),
    Sketcher.Constraint("Horizontal", 4),
    Sketcher.Constraint("Vertical", 5),
    Sketcher.Constraint("Vertical", 7),
    Sketcher.Constraint("Horizontal", 8),
    Sketcher.Constraint("Horizontal", 10),
    Sketcher.Constraint("Vertical", 11),
    Sketcher.Constraint("Vertical", 13),
    Sketcher.Constraint("Horizontal", 14),
    Sketcher.Constraint("Coincident", 6, 3, -1, 1),
    Sketcher.Constraint("Coincident", 9, 3, -1, 1),
    Sketcher.Constraint("Coincident", 12, 3, -1, 1),
    Sketcher.Constraint("Coincident", 15, 3, -1, 1),
    Sketcher.Constraint("Equal", 6, 9),
    Sketcher.Constraint("Equal", 9, 12),
    Sketcher.Constraint("Equal", 12, 15),
    Sketcher.Constraint("Symmetric", 0, 2, 2, 2, -1, 1),
    Sketcher.Constraint("Symmetric", 4, 2, 10, 2, -1, 1),
    Sketcher.Constraint("Symmetric", 7, 2, 13, 2, -1, 1),
    Sketcher.Constraint("Symmetric", 4, 2, 7, 2, -2),
    Sketcher.Constraint("Equal", 2, 1),
    Sketcher.Constraint("Equal", 14, 5),
    Sketcher.Constraint("Radius", 6, Q("2.75 mm")),
    Sketcher.Constraint("DistanceX", -1, 1, 4, 2, Q("0.6 mm")),
    Sketcher.Constraint("DistanceX", 0, 2, 0, 1, Q("29.398 mm")),
])
pocket4 = body.newObject("PartDesign::Pocket", "Pocket003")
pocket4.Profile = sketch5
pocket4.Length = 3.5

doc.recompute()
